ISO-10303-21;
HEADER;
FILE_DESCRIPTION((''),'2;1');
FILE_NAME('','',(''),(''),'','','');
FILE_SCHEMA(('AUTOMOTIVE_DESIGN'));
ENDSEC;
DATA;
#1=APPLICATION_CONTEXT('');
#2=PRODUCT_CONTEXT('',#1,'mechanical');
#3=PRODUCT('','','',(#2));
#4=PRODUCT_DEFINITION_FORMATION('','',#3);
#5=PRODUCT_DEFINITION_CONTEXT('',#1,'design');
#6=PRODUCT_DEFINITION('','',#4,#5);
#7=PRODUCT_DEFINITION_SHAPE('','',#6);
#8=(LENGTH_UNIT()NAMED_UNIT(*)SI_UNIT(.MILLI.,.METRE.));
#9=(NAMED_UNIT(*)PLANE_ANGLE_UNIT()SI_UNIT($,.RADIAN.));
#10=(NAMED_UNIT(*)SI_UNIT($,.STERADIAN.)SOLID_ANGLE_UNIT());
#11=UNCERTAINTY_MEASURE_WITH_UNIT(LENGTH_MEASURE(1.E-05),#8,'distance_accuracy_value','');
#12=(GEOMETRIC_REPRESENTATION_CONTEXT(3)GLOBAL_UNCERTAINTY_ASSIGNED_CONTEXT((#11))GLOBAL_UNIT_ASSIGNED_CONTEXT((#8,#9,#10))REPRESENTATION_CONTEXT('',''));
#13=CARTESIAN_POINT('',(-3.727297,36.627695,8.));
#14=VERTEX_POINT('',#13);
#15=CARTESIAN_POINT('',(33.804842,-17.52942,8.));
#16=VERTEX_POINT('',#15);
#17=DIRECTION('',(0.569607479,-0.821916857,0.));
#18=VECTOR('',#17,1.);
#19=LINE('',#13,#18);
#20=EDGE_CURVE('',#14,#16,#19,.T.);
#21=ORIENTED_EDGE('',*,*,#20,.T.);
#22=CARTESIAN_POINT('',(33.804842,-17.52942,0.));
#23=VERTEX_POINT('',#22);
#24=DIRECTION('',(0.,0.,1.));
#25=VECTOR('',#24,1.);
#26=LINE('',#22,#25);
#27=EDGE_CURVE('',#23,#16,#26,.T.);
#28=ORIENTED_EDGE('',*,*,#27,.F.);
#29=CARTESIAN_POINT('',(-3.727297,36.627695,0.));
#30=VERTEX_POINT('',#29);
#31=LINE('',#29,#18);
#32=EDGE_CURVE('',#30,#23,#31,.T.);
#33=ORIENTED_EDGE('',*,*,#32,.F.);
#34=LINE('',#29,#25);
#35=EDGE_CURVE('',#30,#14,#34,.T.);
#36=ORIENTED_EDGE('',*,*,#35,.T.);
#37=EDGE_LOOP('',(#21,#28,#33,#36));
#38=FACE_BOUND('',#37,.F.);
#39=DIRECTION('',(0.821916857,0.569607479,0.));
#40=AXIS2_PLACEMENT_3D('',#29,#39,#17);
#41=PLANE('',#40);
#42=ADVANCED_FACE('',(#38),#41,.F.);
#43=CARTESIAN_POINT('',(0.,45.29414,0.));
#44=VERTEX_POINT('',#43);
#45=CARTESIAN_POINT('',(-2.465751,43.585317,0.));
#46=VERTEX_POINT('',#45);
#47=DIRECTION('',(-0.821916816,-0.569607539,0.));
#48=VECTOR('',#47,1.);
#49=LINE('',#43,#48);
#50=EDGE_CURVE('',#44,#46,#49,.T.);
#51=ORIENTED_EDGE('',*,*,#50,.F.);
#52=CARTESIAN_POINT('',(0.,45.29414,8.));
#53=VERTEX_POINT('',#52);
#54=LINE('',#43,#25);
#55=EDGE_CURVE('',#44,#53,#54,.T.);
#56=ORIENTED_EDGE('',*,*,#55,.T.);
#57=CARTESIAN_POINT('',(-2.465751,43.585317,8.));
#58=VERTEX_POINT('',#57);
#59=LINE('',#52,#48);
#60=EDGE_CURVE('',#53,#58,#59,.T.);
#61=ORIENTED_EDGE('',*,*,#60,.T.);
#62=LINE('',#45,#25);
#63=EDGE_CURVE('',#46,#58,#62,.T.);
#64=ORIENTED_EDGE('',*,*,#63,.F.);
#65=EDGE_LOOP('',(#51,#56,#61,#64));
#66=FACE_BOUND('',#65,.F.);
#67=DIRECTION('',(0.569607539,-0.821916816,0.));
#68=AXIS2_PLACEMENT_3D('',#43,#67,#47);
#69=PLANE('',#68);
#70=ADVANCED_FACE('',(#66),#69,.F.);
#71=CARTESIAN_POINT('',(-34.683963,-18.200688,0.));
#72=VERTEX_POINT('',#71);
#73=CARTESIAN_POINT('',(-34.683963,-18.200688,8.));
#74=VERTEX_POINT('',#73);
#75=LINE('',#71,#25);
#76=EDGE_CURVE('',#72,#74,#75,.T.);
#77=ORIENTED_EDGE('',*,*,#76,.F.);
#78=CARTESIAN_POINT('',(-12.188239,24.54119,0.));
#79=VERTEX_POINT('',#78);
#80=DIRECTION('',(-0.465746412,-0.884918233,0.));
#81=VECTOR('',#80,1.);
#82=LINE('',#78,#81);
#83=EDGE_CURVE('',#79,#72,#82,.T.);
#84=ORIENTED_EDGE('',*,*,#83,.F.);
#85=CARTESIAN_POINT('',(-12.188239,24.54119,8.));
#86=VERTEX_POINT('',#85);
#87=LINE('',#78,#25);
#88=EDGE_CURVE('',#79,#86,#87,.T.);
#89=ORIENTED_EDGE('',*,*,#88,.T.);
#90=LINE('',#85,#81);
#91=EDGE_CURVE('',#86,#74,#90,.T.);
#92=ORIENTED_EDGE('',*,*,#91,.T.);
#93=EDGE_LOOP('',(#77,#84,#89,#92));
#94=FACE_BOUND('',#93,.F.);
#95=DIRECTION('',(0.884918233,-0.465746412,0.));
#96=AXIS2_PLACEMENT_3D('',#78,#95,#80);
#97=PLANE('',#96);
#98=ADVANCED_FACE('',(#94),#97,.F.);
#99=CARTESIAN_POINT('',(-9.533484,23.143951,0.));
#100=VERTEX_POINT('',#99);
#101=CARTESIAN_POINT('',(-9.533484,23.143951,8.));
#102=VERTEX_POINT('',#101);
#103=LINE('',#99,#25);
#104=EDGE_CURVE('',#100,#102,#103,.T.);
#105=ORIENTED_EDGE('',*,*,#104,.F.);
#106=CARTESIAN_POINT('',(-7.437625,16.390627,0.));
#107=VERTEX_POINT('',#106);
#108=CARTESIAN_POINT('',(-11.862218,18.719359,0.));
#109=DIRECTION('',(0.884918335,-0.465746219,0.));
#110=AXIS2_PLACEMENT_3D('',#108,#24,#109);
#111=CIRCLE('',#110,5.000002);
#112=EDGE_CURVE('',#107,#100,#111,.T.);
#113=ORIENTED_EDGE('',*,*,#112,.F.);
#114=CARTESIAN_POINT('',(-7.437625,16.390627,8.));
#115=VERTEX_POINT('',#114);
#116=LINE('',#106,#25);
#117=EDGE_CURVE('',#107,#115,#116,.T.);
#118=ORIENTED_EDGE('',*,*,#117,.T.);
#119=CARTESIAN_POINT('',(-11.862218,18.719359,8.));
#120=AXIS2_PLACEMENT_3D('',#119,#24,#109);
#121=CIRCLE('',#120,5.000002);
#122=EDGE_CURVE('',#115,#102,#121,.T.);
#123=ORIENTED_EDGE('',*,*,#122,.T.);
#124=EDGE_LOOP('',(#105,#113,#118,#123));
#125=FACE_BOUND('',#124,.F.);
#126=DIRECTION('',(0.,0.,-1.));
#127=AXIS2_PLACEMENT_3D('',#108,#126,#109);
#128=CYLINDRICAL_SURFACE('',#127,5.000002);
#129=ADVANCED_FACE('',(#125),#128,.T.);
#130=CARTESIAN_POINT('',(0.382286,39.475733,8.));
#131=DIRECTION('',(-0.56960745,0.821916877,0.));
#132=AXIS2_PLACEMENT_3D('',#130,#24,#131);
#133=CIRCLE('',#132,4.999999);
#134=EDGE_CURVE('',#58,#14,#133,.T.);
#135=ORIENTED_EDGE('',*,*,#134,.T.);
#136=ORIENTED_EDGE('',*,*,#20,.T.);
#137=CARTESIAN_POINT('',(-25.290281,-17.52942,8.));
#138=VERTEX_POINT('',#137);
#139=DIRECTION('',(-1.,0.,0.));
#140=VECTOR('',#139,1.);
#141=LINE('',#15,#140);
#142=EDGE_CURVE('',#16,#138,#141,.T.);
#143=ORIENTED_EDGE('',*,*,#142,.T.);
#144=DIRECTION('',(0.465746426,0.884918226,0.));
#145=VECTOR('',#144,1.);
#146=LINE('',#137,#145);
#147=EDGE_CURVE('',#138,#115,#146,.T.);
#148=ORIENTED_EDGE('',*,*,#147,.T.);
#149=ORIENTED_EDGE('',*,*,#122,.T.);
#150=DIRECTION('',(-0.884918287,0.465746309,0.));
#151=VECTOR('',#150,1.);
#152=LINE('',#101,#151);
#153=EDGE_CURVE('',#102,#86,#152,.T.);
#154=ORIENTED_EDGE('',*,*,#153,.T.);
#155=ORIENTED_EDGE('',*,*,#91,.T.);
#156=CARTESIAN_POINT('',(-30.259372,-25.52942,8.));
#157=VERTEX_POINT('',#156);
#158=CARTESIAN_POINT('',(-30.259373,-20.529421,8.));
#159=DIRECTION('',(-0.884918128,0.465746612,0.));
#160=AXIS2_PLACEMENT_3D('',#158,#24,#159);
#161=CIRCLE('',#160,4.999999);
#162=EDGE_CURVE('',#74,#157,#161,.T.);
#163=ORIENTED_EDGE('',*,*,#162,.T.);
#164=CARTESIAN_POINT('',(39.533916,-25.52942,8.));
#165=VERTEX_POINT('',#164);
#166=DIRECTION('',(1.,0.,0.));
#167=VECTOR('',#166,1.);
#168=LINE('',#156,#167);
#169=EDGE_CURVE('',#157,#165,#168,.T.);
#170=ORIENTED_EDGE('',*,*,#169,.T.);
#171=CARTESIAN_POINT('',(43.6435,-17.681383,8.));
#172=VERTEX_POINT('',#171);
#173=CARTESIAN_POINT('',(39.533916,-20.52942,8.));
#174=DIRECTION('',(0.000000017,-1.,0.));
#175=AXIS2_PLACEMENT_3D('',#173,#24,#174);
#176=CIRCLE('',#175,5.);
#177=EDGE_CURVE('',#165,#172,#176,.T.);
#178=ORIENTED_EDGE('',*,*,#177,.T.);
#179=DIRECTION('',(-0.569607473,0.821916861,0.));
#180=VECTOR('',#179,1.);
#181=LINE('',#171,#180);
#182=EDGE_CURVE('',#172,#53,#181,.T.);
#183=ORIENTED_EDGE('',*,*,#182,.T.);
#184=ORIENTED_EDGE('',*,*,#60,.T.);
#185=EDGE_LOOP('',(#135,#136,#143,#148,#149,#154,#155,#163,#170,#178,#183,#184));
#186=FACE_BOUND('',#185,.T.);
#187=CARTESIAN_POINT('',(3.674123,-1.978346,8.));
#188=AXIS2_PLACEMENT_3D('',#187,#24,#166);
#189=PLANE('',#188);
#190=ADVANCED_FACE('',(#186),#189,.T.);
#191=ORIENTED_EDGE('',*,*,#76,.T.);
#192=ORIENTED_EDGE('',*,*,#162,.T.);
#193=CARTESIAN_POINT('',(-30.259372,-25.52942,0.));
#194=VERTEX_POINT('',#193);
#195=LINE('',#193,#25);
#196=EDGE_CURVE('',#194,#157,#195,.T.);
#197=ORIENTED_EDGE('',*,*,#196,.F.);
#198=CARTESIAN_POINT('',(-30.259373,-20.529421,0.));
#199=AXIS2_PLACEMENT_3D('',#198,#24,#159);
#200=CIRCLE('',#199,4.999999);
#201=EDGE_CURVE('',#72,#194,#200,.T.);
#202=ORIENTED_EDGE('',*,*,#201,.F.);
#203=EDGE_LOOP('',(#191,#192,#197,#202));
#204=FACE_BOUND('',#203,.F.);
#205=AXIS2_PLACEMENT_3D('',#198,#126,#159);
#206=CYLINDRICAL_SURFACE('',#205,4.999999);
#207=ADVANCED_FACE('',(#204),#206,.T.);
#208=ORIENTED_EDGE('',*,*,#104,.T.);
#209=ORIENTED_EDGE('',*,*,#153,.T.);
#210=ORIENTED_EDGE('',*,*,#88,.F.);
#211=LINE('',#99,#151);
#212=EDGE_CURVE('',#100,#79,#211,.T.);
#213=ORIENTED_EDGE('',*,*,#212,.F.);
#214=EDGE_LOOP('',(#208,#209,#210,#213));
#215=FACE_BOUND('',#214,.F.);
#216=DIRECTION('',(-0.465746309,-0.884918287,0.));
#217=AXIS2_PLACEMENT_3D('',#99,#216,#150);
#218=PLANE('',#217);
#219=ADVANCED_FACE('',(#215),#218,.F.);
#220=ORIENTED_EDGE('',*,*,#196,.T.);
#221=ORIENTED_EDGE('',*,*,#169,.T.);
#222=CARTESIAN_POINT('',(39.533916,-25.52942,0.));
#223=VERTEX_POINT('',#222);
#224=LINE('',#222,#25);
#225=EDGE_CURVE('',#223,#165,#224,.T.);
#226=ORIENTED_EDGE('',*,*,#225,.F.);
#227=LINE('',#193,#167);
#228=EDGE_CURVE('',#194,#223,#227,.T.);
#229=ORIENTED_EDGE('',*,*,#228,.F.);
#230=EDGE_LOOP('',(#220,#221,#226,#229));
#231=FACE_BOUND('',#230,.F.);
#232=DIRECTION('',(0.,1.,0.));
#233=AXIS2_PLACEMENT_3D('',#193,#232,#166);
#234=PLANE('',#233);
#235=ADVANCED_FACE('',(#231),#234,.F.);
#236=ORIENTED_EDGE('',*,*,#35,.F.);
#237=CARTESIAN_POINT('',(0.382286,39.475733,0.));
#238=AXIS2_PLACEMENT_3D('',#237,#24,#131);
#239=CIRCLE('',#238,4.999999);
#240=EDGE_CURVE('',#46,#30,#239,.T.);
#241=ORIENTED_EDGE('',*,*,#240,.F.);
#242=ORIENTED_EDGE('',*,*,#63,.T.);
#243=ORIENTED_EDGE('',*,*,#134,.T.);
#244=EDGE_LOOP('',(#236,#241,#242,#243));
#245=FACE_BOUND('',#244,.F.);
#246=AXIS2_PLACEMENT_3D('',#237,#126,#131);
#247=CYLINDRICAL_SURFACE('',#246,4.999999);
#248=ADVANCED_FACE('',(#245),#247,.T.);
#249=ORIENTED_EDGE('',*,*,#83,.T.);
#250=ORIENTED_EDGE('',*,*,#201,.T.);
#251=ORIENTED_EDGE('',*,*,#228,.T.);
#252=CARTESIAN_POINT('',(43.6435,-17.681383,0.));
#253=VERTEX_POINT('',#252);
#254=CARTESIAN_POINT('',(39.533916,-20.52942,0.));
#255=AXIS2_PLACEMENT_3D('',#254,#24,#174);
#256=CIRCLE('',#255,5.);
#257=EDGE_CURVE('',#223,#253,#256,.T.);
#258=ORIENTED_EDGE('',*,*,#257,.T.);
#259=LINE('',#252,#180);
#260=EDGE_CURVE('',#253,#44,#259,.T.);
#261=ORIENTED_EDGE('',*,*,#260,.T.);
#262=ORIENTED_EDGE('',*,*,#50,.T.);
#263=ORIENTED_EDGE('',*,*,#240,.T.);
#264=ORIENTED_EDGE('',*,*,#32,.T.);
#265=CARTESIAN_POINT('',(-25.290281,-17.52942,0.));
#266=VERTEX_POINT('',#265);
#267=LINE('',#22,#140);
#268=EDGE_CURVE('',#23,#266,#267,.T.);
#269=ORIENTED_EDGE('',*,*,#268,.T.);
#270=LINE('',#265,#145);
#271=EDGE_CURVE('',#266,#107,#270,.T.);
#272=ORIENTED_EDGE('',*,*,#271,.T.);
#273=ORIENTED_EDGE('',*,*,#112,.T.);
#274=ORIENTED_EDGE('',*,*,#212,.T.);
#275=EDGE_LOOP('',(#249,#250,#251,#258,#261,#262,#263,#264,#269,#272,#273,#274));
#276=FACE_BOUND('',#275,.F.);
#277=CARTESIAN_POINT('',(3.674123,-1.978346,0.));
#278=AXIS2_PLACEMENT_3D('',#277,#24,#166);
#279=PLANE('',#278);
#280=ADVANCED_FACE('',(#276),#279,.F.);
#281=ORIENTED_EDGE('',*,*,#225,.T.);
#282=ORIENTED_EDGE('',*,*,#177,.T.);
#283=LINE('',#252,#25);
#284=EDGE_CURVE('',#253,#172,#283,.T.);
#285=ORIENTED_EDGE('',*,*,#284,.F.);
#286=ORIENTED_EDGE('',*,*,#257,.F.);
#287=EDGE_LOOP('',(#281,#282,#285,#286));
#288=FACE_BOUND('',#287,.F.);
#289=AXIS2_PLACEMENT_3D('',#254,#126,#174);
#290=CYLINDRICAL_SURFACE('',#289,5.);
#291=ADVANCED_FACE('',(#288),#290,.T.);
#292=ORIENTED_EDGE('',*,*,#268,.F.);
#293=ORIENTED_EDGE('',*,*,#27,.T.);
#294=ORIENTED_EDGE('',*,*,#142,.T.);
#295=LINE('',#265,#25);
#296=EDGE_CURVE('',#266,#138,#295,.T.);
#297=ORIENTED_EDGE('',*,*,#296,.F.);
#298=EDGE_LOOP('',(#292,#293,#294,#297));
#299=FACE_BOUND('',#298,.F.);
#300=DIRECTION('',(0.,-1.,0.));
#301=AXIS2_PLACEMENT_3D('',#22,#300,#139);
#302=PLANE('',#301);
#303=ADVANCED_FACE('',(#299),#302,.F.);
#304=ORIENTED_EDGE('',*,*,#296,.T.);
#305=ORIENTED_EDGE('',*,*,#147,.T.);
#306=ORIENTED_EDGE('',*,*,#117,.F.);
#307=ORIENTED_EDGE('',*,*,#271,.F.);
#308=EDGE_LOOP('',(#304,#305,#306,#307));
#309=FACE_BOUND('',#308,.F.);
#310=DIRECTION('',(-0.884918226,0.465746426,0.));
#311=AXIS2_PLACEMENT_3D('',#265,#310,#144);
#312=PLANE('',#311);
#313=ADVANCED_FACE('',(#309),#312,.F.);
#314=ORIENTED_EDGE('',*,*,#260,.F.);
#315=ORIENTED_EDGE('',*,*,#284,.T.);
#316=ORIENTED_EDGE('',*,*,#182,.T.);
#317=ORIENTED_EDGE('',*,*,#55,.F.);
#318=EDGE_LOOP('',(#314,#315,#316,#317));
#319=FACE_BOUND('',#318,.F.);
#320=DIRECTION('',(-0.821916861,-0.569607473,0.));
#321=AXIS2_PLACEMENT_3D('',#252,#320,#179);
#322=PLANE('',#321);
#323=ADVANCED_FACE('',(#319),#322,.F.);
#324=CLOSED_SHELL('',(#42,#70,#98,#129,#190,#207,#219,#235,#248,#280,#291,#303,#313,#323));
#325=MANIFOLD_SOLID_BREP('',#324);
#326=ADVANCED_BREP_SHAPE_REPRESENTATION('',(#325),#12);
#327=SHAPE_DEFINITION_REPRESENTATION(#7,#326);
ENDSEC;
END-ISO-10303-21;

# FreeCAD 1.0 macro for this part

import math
import FreeCAD as App
import Part
import Sketcher

V = App.Vector
Q = App.Units.Quantity

doc = App.newDocument("Part")
body = doc.addObject("PartDesign::Body", "Body")

# Sketch on XY plane
sketch1 = body.newObject("Sketcher::SketchObject", "Sketch")
sketch1.AttachmentSupport = (doc.getObject("XY_Plane"), [""])
sketch1.MapMode = "FlatFace"
sketch1.addGeometry(Part.ArcOfCircle(Part.Circle(V(-30.259373, -20.529421, 0), V(0, 0, 1), 4.999999), math.radians(152.241448), math.radians(270.000011)), False)
sketch1.addGeometry(Part.LineSegment(V(-30.259372, -25.52942, 0), V(39.533916, -25.52942, 0)), False)
sketch1.addGeometry(Part.ArcOfCircle(Part.Circle(V(39.533916, -20.52942, 0), V(0, 0, 1), 5), math.radians(-89.999999), math.radians(34.722859)), False)
sketch1.addGeometry(Part.LineSegment(V(43.6435, -17.681383, 0), V(0, 45.29414, 0)), False)
sketch1.addGeometry(Part.LineSegment(V(0, 45.29414, 0), V(-2.465751, 43.585317, 0)), False)
sketch1.addGeometry(Part.ArcOfCircle(Part.Circle(V(0.382286, 39.475733, 0), V(0, 0, 1), 4.999999), math.radians(124.722857), math.radians(214.722876)), False)
sketch1.addGeometry(Part.LineSegment(V(-3.727297, 36.627695, 0), V(33.804842, -17.52942, 0)), False)
sketch1.addGeometry(Part.LineSegment(V(33.804842, -17.52942, 0), V(-25.290281, -17.52942, 0)), False)
sketch1.addGeometry(Part.LineSegment(V(-25.290281, -17.52942, 0), V(-7.437625, 16.390627, 0)), False)
sketch1.addGeometry(Part.ArcOfCircle(Part.Circle(V(-11.862218, 18.719359, 0), V(0, 0, 1), 5.000002), math.radians(-27.758527), math.radians(62.241443)), False)
sketch1.addGeometry(Part.LineSegment(V(-9.533484, 23.143951, 0), V(-12.188239, 24.54119, 0)), False)
sketch1.addGeometry(Part.LineSegment(V(-12.188239, 24.54119, 0), V(-34.683963, -18.200688, 0)), False)
sketch1.addConstraint(Sketcher.Constraint("Coincident", 0, 2, 1, 1))
sketch1.addConstraint(Sketcher.Constraint("Coincident", 1, 2, 2, 1))
sketch1.addConstraint(Sketcher.Constraint("Coincident", 2, 2, 3, 1))
sketch1.addConstraint(Sketcher.Constraint("Coincident", 3, 2, 4, 1))
sketch1.addConstraint(Sketcher.Constraint("Coincident", 4, 2, 5, 1))
sketch1.addConstraint(Sketcher.Constraint("Coincident", 5, 2, 6, 1))
sketch1.addConstraint(Sketcher.Constraint("Coincident", 6, 2, 7, 1))
sketch1.addConstraint(Sketcher.Constraint("Coincident", 7, 2, 8, 1))
sketch1.addConstraint(Sketcher.Constraint("Coincident", 8, 2, 9, 1))
sketch1.addConstraint(Sketcher.Constraint("Coincident", 9, 2, 10, 1))
sketch1.addConstraint(Sketcher.Constraint("Coincident", 10, 2, 11, 1))
sketch1.addConstraint(Sketcher.Constraint("Coincident", 11, 2, 0, 1))
sketch1.addConstraint(Sketcher.Constraint("Horizontal", 1))
sketch1.addConstraint(Sketcher.Constraint("Horizontal", 7))
sketch1.addConstraint(Sketcher.Constraint("PointOnObject", 3, 2, -2))
sketch1.addConstraint(Sketcher.Constraint("Radius", 0, Q("4.999999 mm")))
sketch1.addConstraint(Sketcher.Constraint("Radius", 2, Q("5 mm")))
sketch1.addConstraint(Sketcher.Constraint("Radius", 5, Q("4.999999 mm")))
sketch1.addConstraint(Sketcher.Constraint("Radius", 9, Q("5.000002 mm")))
sketch1.addConstraint(Sketcher.Constraint("Distance", 4, Q("3.000001 mm")))
sketch1.addConstraint(Sketcher.Constraint("Distance", 10, Q("3 mm")))
sketch1.addConstraint(Sketcher.Constraint("DistanceY", 2, 3, 6, 2, Q("3 mm")))
sketch1.addConstraint(Sketcher.Constraint("DistanceX", -1, 1, 2, 2, Q("43.6435 mm")))
sketch1.addConstraint(Sketcher.Constraint("Distance", 8, Q("38.331279 mm")))
sketch1.addConstraint(Sketcher.Constraint("Distance", 11, Q("48.30037 mm")))
sketch1.addConstraint(Sketcher.Constraint("DistanceX", 1, 1, 1, 2, Q("69.793288 mm")))
sketch1.addConstraint(Sketcher.Constraint("DistanceX", 7, 2, 7, 1, Q("59.095123 mm")))
sketch1.addConstraint(Sketcher.Constraint("DistanceY", 0, 3, -1, 1, Q("20.529421 mm")))
sketch1.addConstraint(Sketcher.Constraint("DistanceX", 9, 3, -1, 1, Q("11.862218 mm")))
sketch1.addConstraint(Sketcher.Constraint("DistanceY", -1, 1, 9, 3, Q("18.719359 mm")))
sketch1.addConstraint(Sketcher.Constraint("DistanceX", 0, 2, -1, 1, Q("30.259372 mm")))
sketch1.addConstraint(Sketcher.Constraint("DistanceY", -1, 1, 3, 2, Q("45.29414 mm")))
sketch1.addConstraint(Sketcher.Constraint("DistanceX", 4, 2, -1, 1, Q("2.465751 mm")))
sketch1.addConstraint(Sketcher.Constraint("DistanceX", 7, 2, -1, 1, Q("25.290281 mm")))
sketch1.addConstraint(Sketcher.Constraint("DistanceY", -1, 1, 9, 2, Q("23.143951 mm")))
sketch1.addConstraint(Sketcher.Constraint("DistanceX", 10, 2, -1, 1, Q("12.188239 mm")))
sketch1.addConstraint(Sketcher.Constraint("DistanceX", 0, 3, 2, 3, Q("69.793289 mm")))
sketch1.addConstraint(Sketcher.Constraint("DistanceX", 0, 3, 5, 3, Q("30.641659 mm")))
sketch1.addConstraint(Sketcher.Constraint("DistanceX", 0, 3, 1, 2, Q("69.793289 mm")))
sketch1.addConstraint(Sketcher.Constraint("DistanceY", 5, 2, 5, 3, Q("2.848038 mm")))
pad1 = body.newObject("PartDesign::Pad", "Pad")
pad1.Profile = sketch1
pad1.Length = 8

doc.recompute()
